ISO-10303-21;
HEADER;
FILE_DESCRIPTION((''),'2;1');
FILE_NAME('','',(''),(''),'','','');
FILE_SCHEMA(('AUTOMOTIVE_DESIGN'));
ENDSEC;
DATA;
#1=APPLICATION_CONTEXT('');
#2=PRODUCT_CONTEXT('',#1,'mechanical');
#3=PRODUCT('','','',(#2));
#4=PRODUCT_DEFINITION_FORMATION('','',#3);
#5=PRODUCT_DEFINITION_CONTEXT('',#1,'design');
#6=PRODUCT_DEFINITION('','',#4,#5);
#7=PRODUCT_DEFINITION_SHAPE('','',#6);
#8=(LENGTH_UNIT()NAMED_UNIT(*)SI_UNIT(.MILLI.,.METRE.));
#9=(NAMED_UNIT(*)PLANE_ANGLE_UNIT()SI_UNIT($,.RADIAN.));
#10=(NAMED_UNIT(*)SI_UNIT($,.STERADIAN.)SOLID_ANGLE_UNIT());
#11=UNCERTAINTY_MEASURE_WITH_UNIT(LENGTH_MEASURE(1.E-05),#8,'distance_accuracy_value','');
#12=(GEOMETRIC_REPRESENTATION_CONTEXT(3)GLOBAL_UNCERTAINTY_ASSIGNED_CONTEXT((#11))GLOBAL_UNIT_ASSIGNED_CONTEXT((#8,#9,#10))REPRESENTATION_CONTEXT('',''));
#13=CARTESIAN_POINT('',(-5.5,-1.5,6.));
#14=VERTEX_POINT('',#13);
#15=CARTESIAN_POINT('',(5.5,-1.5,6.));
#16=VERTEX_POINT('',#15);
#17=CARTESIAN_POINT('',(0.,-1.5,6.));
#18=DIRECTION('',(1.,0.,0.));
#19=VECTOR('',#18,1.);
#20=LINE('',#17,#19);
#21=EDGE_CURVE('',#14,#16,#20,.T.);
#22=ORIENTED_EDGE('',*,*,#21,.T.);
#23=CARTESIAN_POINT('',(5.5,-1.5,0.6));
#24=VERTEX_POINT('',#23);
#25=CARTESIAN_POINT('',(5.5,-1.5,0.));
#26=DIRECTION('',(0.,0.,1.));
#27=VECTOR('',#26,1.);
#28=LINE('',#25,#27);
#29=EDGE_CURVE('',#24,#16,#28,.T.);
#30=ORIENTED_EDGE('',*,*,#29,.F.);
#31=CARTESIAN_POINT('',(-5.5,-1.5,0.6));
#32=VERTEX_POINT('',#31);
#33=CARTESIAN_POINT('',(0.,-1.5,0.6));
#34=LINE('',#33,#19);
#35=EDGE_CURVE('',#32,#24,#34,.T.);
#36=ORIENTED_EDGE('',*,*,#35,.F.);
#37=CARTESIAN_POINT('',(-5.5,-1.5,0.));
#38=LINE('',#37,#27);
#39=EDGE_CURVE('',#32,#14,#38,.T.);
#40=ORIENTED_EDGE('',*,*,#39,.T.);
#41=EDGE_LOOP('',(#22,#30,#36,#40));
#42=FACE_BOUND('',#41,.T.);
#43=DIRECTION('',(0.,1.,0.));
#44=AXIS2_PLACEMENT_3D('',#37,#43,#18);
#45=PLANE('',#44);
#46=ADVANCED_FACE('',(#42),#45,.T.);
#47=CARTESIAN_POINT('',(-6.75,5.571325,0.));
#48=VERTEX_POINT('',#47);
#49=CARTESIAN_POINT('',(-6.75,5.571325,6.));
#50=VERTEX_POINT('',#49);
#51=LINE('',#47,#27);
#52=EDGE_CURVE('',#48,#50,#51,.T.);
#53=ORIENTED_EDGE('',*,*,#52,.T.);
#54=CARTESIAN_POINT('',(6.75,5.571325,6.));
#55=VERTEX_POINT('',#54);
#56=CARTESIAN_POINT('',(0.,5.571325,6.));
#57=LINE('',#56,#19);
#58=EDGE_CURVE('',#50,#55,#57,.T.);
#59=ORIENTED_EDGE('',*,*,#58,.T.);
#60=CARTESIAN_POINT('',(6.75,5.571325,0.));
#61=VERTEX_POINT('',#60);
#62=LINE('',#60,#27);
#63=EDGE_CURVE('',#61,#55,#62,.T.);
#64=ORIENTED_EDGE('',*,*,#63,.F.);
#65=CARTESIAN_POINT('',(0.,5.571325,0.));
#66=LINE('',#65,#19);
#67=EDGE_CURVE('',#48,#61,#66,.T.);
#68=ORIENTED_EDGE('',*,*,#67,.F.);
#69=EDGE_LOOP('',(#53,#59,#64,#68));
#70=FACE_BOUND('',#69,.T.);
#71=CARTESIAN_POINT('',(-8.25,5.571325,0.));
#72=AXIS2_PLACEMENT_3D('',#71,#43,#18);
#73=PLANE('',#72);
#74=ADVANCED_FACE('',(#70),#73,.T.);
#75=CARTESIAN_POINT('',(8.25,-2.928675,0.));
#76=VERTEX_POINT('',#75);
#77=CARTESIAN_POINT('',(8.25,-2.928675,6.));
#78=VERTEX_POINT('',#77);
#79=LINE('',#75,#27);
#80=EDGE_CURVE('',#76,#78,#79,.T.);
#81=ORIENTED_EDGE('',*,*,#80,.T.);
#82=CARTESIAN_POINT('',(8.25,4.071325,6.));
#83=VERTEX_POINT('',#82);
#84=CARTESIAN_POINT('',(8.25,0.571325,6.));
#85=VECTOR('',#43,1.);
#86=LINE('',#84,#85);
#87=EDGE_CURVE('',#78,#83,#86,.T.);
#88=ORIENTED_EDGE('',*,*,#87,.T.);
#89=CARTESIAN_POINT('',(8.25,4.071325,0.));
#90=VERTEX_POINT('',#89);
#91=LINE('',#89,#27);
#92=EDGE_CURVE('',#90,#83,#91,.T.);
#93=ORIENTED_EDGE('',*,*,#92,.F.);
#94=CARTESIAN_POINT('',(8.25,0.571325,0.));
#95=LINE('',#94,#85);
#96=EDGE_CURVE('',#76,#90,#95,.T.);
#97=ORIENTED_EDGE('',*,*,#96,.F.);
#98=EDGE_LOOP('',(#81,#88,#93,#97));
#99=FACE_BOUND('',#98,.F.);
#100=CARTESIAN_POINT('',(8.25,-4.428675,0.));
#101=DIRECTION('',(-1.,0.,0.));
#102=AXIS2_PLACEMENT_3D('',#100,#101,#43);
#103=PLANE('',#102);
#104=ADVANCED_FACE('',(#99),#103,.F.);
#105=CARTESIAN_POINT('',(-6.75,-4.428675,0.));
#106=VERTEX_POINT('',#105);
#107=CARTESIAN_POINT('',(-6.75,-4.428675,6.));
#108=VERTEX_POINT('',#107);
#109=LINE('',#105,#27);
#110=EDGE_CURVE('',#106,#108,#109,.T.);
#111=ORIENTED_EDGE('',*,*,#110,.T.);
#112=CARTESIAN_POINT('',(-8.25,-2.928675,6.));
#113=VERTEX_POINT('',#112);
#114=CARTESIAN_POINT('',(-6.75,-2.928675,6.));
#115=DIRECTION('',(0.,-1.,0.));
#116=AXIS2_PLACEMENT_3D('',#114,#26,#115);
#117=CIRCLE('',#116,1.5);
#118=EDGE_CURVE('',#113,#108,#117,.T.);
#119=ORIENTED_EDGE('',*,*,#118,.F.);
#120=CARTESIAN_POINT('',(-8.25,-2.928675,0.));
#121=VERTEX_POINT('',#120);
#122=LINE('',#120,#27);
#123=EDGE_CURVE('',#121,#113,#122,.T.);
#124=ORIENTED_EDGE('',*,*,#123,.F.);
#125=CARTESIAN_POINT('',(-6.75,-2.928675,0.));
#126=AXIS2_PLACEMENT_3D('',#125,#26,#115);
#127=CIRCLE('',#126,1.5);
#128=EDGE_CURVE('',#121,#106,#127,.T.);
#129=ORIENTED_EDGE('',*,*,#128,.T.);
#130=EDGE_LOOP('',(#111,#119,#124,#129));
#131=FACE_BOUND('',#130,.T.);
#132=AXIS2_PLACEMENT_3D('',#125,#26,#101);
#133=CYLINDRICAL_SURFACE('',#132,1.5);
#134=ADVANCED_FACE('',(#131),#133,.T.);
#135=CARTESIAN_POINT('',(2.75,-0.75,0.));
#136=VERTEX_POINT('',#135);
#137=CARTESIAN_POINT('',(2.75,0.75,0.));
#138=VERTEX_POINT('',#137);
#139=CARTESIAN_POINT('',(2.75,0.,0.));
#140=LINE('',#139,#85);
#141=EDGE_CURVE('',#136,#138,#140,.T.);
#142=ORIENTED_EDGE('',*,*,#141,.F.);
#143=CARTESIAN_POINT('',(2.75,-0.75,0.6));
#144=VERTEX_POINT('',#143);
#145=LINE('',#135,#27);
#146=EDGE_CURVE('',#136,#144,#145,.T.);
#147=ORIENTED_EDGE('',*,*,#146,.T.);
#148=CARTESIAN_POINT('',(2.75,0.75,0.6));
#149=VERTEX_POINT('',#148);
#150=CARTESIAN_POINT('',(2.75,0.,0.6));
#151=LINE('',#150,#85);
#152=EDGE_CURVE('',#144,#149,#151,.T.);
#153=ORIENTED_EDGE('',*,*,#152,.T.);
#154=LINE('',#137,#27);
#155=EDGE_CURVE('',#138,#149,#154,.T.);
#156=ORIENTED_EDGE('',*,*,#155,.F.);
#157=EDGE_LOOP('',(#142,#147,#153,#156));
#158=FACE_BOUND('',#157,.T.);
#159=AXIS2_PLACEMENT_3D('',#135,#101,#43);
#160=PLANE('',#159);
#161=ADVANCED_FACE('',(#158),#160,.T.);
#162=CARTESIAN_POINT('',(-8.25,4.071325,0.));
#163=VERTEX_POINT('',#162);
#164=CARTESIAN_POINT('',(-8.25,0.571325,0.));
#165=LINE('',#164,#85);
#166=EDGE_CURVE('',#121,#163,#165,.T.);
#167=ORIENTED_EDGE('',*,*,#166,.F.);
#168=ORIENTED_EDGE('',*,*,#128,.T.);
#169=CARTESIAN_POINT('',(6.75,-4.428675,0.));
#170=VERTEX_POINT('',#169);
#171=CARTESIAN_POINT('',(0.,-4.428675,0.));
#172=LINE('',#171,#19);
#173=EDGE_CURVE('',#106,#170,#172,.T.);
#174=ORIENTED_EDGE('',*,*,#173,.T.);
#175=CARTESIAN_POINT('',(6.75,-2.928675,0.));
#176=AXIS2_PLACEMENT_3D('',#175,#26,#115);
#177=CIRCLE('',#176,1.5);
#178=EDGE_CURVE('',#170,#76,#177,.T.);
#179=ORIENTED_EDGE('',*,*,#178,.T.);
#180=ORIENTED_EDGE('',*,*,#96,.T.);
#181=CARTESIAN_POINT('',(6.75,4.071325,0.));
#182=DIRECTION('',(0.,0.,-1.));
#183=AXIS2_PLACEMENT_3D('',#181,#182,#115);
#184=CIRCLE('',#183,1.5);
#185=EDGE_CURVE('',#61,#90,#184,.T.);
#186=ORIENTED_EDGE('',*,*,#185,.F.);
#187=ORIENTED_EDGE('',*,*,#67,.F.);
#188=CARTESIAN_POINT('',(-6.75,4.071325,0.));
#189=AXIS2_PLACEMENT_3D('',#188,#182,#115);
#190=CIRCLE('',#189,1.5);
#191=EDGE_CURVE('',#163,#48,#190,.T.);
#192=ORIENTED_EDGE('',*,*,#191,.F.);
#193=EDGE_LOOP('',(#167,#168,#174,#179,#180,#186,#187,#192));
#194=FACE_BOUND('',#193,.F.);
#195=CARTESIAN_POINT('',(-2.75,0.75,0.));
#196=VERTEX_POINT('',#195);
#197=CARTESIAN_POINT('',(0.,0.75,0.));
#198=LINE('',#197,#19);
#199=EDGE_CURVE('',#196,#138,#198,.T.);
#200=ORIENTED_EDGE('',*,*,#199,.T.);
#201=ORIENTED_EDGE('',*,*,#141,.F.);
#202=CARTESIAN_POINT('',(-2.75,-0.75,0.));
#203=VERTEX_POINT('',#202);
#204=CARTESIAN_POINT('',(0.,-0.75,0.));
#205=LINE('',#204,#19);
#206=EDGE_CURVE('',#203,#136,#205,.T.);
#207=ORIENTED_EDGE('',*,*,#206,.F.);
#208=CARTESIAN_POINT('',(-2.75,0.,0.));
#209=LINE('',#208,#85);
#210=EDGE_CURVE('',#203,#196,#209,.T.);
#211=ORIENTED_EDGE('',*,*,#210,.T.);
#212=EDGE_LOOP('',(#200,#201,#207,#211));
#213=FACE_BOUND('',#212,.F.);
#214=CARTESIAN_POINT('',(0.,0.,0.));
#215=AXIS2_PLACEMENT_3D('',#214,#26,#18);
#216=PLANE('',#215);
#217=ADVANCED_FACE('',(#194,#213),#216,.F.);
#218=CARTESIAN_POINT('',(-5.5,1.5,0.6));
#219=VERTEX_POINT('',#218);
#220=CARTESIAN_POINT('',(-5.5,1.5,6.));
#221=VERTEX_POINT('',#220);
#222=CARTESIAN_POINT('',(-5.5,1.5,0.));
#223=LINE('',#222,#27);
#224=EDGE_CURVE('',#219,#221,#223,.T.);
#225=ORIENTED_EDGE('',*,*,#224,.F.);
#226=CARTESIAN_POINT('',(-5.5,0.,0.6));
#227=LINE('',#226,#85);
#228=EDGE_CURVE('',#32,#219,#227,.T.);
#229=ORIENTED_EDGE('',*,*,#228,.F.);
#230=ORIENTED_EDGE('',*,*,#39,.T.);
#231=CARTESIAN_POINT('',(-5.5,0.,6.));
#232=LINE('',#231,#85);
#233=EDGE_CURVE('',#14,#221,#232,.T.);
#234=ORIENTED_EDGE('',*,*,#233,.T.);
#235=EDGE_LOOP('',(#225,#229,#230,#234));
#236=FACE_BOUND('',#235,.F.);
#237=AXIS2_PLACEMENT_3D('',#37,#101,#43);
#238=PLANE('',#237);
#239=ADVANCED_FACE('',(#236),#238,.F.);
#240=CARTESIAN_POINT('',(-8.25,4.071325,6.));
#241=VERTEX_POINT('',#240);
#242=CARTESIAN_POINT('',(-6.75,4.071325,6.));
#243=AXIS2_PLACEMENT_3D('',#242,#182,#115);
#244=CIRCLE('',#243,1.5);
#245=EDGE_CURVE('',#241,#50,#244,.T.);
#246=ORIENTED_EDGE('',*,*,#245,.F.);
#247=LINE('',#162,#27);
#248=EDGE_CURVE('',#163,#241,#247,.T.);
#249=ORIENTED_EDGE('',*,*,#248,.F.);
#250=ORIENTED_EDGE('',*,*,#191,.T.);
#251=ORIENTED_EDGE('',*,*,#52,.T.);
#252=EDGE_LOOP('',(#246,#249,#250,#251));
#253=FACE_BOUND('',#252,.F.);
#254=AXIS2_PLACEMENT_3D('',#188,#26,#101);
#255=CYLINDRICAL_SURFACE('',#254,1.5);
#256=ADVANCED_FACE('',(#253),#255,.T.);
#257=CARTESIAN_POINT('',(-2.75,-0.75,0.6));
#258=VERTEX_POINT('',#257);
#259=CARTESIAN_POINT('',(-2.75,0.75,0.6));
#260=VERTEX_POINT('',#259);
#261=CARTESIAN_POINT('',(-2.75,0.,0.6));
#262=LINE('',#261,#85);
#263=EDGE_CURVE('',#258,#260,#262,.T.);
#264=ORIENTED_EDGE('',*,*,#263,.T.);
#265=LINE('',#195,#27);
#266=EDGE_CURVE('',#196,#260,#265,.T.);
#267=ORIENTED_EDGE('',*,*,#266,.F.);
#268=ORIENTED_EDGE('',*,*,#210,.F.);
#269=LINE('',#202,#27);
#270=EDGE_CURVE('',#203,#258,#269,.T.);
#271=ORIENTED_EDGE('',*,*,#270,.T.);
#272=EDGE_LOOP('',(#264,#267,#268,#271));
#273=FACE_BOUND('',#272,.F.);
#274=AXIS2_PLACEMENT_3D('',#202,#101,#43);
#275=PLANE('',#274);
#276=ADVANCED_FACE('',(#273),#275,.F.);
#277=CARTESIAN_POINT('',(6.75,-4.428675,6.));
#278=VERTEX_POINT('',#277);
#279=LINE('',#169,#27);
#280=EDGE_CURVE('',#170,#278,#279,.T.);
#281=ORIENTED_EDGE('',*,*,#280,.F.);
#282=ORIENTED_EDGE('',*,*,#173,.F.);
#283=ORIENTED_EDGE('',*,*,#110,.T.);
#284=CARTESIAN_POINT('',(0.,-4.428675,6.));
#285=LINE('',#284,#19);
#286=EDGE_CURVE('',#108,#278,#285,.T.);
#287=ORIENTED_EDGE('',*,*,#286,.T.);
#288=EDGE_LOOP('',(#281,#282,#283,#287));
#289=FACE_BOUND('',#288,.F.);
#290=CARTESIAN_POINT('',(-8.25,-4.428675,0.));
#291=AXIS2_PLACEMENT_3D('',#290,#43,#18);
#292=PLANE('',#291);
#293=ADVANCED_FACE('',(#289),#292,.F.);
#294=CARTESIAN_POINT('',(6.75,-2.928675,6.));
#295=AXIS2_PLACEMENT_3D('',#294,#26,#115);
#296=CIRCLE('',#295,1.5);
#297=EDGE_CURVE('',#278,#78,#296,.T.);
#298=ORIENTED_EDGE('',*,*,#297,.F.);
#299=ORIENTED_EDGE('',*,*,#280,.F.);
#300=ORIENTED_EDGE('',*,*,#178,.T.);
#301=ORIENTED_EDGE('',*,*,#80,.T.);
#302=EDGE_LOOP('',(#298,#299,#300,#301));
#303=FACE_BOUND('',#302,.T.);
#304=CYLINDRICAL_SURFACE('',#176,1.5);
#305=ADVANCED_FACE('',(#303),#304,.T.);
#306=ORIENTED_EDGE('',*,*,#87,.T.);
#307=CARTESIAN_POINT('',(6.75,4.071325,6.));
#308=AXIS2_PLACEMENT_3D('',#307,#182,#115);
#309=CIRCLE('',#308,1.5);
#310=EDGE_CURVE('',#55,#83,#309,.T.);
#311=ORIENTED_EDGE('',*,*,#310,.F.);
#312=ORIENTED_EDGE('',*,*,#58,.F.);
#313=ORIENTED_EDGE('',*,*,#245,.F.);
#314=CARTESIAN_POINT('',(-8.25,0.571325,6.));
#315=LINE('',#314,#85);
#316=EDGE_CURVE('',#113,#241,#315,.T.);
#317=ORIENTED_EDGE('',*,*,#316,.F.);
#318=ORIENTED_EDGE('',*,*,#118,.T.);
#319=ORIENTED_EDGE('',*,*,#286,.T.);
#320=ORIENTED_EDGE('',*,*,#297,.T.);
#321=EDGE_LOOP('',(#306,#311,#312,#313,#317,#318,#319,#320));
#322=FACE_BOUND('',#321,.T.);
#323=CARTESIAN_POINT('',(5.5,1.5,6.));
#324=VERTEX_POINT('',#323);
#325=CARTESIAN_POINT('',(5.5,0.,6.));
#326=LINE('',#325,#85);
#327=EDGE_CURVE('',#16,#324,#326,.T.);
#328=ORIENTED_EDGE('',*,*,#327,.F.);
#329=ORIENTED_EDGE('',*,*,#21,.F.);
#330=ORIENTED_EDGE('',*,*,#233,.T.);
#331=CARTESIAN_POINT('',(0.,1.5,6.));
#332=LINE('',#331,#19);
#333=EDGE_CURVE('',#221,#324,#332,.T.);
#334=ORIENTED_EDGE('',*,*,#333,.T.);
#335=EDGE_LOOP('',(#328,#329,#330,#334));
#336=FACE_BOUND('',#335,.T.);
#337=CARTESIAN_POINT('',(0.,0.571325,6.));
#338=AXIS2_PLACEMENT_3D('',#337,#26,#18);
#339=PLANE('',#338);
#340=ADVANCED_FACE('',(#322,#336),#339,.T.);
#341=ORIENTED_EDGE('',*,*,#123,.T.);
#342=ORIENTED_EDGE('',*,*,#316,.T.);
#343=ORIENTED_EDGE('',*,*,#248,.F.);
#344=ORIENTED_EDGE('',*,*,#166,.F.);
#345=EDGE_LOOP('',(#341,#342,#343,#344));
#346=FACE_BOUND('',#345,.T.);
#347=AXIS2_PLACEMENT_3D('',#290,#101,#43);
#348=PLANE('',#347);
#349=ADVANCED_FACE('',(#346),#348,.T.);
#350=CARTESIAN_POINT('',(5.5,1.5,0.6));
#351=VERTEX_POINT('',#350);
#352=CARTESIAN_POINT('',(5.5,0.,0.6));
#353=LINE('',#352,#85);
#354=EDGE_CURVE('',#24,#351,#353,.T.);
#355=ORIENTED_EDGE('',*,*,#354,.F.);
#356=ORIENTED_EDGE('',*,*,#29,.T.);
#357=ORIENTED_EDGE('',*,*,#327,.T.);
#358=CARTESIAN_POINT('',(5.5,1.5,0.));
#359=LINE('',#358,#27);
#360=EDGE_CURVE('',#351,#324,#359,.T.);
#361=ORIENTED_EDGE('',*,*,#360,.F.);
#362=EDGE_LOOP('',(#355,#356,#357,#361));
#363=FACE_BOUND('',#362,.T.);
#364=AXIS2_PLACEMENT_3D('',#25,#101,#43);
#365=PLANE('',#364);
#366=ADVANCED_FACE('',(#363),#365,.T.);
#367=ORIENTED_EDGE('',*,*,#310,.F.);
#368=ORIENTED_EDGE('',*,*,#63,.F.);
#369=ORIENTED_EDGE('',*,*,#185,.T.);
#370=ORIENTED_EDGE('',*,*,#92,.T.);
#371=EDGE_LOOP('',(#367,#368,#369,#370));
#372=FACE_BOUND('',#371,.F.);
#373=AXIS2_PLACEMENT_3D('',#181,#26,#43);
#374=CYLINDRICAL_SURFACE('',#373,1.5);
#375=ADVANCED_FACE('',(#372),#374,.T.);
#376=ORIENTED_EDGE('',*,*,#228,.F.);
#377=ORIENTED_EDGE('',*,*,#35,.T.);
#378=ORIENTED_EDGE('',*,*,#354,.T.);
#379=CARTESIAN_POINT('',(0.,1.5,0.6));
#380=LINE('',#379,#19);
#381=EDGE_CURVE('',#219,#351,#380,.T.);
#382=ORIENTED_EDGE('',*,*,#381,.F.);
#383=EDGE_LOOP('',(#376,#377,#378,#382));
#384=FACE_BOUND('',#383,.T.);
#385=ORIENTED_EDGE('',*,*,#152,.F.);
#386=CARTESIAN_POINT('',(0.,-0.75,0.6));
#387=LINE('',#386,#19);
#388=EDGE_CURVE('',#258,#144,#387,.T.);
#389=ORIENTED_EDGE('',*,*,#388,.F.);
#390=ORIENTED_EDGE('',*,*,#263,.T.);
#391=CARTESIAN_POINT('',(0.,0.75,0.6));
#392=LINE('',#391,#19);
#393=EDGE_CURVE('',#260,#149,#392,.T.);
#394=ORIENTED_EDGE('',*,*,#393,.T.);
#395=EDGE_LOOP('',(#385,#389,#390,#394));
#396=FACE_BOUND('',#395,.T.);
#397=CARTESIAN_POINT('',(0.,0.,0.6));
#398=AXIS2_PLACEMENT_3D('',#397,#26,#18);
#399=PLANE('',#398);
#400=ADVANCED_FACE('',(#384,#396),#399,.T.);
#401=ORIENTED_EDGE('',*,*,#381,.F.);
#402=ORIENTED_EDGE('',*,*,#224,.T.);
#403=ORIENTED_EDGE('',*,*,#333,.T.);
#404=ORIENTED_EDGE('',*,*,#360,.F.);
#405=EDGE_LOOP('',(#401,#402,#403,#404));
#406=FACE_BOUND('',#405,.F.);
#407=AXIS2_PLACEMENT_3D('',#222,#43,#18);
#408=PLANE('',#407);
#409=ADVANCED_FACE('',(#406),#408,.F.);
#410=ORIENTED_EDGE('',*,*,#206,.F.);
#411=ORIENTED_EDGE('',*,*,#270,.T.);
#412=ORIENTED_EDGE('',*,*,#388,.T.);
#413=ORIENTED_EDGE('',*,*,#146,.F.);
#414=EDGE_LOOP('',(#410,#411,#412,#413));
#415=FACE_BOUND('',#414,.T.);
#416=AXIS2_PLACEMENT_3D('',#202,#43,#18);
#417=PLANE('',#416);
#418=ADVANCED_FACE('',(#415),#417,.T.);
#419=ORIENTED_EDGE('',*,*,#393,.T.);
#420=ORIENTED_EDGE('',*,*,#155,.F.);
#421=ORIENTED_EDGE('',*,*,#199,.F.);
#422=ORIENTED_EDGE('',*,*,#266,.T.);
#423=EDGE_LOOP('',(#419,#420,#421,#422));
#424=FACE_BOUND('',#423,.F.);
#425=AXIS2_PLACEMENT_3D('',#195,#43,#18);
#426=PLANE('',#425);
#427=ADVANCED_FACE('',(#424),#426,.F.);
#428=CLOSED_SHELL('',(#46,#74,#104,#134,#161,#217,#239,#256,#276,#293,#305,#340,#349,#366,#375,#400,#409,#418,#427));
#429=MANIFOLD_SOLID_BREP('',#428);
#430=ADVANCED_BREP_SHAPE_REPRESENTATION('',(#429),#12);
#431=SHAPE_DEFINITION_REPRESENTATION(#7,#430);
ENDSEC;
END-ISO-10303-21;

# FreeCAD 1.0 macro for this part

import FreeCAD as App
import Part
import Sketcher
from FreeCAD import Vector


def edges_at(feature, points):
    """Names of the edges that pass closest to the given points."""
    edges = feature.Shape.Edges
    near = lambda p: min(range(len(edges)), key=lambda i: edges[i].distToShape(Part.Vertex(*p))[0])
    return sorted({f"Edge{near(p) + 1}" for p in points})


def add_polygon(sketch, points):
    """Adds a closed chain of lines whose ends are joined by coincident constraints."""
    first, n = sketch.GeometryCount, len(points)
    for a, b in zip(points, points[1:] + points[:1]):
        sketch.addGeometry(Part.LineSegment(App.Vector(*a, 0), App.Vector(*b, 0)), False)
    for i in range(n):
        sketch.addConstraint(Sketcher.Constraint("Coincident", first + i, 2, first + (i + 1) % n, 1))

doc = App.newDocument("Part")
body = doc.addObject("PartDesign::Body", "Body")

sketch1 = body.newObject("Sketcher::SketchObject", "Sketch")
sketch1.AttachmentSupport = (doc.getObject("XY_Plane"), [""])
sketch1.MapMode = "FlatFace"
add_polygon(sketch1, [(-8.2, 5.6), (-8.2, -4.4), (8.2, -4.4), (8.2, 5.6)])
add_polygon(sketch1, [(5.5, -1.5), (-5.5, -1.5), (-5.5, 1.5), (5.5, 1.5)])
sketch1.addConstraint([
    Sketcher.Constraint("Vertical", 0),
    Sketcher.Constraint("Horizontal", 1),
    Sketcher.Constraint("Vertical", 2),
    Sketcher.Constraint("Horizontal", 3),
    Sketcher.Constraint("Horizontal", 4),
    Sketcher.Constraint("Vertical", 5),
    Sketcher.Constraint("Horizontal", 6),
    Sketcher.Constraint("Vertical", 7),
    Sketcher.Constraint("Symmetric", 4, 2, 6, 2, -1, 1),
    Sketcher.Constraint("DistanceX", 4, 2, 4, 1, 11.0),
    Sketcher.Constraint("DistanceY", 0, 2, 0, 1, 10.0),
    Sketcher.Constraint("DistanceY", 5, 1, 5, 2, 3.0),
    Sketcher.Constraint("DistanceX", 1, 1, 1, 2, 16.5),
    Sketcher.Constraint("DistanceX", 0, 2, -1, 1, 8.25),
    Sketcher.Constraint("DistanceY", 0, 2, -1, 1, 4.428675),
])
pad1 = body.newObject("PartDesign::Pad", "Pad")
pad1.Profile = sketch1
pad1.Length = 6
doc.recompute()

fillet = body.newObject("PartDesign::Fillet", "Fillet")
fillet.Base = (pad1, edges_at(pad1, [
    (-8.25, 5.571, 3),
    (8.25, 5.571, 3),
    (8.25, -4.429, 3),
    (-8.25, -4.429, 3),
]))
fillet.Radius = 1.5

sketch2 = body.newObject("Sketcher::SketchObject", "Sketch001")
sketch2.AttachmentSupport = (doc.getObject("XY_Plane"), [""])
sketch2.MapMode = "FlatFace"
add_polygon(sketch2, [(-5.5, 1.5), (-5.5, -1.5), (5.5, -1.5), (5.5, 1.5)])
add_polygon(sketch2, [(2.8, -0.8), (-2.8, -0.8), (-2.8, 0.8), (2.8, 0.8)])
sketch2.addConstraint([
    Sketcher.Constraint("Vertical", 0),
    Sketcher.Constraint("Horizontal", 1),
    Sketcher.Constraint("Vertical", 2),
    Sketcher.Constraint("Horizontal", 3),
    Sketcher.Constraint("Horizontal", 4),
    Sketcher.Constraint("Vertical", 5),
    Sketcher.Constraint("Horizontal", 6),
    Sketcher.Constraint("Vertical", 7),
    Sketcher.Constraint("Symmetric", 0, 2, 2, 2, -1, 1),
    Sketcher.Constraint("Symmetric", 4, 2, 6, 2, -1, 1),
    Sketcher.Constraint("DistanceX", 1, 1, 1, 2, 11.0),
    Sketcher.Constraint("DistanceY", 0, 2, 0, 1, 3.0),
    Sketcher.Constraint("DistanceX", 4, 2, 4, 1, 5.5),
    Sketcher.Constraint("DistanceY", 5, 1, 5, 2, 1.5),
])
pad2 = body.newObject("PartDesign::Pad", "Pad001")
pad2.Profile = sketch2
pad2.Length = 0.6

doc.recompute()
